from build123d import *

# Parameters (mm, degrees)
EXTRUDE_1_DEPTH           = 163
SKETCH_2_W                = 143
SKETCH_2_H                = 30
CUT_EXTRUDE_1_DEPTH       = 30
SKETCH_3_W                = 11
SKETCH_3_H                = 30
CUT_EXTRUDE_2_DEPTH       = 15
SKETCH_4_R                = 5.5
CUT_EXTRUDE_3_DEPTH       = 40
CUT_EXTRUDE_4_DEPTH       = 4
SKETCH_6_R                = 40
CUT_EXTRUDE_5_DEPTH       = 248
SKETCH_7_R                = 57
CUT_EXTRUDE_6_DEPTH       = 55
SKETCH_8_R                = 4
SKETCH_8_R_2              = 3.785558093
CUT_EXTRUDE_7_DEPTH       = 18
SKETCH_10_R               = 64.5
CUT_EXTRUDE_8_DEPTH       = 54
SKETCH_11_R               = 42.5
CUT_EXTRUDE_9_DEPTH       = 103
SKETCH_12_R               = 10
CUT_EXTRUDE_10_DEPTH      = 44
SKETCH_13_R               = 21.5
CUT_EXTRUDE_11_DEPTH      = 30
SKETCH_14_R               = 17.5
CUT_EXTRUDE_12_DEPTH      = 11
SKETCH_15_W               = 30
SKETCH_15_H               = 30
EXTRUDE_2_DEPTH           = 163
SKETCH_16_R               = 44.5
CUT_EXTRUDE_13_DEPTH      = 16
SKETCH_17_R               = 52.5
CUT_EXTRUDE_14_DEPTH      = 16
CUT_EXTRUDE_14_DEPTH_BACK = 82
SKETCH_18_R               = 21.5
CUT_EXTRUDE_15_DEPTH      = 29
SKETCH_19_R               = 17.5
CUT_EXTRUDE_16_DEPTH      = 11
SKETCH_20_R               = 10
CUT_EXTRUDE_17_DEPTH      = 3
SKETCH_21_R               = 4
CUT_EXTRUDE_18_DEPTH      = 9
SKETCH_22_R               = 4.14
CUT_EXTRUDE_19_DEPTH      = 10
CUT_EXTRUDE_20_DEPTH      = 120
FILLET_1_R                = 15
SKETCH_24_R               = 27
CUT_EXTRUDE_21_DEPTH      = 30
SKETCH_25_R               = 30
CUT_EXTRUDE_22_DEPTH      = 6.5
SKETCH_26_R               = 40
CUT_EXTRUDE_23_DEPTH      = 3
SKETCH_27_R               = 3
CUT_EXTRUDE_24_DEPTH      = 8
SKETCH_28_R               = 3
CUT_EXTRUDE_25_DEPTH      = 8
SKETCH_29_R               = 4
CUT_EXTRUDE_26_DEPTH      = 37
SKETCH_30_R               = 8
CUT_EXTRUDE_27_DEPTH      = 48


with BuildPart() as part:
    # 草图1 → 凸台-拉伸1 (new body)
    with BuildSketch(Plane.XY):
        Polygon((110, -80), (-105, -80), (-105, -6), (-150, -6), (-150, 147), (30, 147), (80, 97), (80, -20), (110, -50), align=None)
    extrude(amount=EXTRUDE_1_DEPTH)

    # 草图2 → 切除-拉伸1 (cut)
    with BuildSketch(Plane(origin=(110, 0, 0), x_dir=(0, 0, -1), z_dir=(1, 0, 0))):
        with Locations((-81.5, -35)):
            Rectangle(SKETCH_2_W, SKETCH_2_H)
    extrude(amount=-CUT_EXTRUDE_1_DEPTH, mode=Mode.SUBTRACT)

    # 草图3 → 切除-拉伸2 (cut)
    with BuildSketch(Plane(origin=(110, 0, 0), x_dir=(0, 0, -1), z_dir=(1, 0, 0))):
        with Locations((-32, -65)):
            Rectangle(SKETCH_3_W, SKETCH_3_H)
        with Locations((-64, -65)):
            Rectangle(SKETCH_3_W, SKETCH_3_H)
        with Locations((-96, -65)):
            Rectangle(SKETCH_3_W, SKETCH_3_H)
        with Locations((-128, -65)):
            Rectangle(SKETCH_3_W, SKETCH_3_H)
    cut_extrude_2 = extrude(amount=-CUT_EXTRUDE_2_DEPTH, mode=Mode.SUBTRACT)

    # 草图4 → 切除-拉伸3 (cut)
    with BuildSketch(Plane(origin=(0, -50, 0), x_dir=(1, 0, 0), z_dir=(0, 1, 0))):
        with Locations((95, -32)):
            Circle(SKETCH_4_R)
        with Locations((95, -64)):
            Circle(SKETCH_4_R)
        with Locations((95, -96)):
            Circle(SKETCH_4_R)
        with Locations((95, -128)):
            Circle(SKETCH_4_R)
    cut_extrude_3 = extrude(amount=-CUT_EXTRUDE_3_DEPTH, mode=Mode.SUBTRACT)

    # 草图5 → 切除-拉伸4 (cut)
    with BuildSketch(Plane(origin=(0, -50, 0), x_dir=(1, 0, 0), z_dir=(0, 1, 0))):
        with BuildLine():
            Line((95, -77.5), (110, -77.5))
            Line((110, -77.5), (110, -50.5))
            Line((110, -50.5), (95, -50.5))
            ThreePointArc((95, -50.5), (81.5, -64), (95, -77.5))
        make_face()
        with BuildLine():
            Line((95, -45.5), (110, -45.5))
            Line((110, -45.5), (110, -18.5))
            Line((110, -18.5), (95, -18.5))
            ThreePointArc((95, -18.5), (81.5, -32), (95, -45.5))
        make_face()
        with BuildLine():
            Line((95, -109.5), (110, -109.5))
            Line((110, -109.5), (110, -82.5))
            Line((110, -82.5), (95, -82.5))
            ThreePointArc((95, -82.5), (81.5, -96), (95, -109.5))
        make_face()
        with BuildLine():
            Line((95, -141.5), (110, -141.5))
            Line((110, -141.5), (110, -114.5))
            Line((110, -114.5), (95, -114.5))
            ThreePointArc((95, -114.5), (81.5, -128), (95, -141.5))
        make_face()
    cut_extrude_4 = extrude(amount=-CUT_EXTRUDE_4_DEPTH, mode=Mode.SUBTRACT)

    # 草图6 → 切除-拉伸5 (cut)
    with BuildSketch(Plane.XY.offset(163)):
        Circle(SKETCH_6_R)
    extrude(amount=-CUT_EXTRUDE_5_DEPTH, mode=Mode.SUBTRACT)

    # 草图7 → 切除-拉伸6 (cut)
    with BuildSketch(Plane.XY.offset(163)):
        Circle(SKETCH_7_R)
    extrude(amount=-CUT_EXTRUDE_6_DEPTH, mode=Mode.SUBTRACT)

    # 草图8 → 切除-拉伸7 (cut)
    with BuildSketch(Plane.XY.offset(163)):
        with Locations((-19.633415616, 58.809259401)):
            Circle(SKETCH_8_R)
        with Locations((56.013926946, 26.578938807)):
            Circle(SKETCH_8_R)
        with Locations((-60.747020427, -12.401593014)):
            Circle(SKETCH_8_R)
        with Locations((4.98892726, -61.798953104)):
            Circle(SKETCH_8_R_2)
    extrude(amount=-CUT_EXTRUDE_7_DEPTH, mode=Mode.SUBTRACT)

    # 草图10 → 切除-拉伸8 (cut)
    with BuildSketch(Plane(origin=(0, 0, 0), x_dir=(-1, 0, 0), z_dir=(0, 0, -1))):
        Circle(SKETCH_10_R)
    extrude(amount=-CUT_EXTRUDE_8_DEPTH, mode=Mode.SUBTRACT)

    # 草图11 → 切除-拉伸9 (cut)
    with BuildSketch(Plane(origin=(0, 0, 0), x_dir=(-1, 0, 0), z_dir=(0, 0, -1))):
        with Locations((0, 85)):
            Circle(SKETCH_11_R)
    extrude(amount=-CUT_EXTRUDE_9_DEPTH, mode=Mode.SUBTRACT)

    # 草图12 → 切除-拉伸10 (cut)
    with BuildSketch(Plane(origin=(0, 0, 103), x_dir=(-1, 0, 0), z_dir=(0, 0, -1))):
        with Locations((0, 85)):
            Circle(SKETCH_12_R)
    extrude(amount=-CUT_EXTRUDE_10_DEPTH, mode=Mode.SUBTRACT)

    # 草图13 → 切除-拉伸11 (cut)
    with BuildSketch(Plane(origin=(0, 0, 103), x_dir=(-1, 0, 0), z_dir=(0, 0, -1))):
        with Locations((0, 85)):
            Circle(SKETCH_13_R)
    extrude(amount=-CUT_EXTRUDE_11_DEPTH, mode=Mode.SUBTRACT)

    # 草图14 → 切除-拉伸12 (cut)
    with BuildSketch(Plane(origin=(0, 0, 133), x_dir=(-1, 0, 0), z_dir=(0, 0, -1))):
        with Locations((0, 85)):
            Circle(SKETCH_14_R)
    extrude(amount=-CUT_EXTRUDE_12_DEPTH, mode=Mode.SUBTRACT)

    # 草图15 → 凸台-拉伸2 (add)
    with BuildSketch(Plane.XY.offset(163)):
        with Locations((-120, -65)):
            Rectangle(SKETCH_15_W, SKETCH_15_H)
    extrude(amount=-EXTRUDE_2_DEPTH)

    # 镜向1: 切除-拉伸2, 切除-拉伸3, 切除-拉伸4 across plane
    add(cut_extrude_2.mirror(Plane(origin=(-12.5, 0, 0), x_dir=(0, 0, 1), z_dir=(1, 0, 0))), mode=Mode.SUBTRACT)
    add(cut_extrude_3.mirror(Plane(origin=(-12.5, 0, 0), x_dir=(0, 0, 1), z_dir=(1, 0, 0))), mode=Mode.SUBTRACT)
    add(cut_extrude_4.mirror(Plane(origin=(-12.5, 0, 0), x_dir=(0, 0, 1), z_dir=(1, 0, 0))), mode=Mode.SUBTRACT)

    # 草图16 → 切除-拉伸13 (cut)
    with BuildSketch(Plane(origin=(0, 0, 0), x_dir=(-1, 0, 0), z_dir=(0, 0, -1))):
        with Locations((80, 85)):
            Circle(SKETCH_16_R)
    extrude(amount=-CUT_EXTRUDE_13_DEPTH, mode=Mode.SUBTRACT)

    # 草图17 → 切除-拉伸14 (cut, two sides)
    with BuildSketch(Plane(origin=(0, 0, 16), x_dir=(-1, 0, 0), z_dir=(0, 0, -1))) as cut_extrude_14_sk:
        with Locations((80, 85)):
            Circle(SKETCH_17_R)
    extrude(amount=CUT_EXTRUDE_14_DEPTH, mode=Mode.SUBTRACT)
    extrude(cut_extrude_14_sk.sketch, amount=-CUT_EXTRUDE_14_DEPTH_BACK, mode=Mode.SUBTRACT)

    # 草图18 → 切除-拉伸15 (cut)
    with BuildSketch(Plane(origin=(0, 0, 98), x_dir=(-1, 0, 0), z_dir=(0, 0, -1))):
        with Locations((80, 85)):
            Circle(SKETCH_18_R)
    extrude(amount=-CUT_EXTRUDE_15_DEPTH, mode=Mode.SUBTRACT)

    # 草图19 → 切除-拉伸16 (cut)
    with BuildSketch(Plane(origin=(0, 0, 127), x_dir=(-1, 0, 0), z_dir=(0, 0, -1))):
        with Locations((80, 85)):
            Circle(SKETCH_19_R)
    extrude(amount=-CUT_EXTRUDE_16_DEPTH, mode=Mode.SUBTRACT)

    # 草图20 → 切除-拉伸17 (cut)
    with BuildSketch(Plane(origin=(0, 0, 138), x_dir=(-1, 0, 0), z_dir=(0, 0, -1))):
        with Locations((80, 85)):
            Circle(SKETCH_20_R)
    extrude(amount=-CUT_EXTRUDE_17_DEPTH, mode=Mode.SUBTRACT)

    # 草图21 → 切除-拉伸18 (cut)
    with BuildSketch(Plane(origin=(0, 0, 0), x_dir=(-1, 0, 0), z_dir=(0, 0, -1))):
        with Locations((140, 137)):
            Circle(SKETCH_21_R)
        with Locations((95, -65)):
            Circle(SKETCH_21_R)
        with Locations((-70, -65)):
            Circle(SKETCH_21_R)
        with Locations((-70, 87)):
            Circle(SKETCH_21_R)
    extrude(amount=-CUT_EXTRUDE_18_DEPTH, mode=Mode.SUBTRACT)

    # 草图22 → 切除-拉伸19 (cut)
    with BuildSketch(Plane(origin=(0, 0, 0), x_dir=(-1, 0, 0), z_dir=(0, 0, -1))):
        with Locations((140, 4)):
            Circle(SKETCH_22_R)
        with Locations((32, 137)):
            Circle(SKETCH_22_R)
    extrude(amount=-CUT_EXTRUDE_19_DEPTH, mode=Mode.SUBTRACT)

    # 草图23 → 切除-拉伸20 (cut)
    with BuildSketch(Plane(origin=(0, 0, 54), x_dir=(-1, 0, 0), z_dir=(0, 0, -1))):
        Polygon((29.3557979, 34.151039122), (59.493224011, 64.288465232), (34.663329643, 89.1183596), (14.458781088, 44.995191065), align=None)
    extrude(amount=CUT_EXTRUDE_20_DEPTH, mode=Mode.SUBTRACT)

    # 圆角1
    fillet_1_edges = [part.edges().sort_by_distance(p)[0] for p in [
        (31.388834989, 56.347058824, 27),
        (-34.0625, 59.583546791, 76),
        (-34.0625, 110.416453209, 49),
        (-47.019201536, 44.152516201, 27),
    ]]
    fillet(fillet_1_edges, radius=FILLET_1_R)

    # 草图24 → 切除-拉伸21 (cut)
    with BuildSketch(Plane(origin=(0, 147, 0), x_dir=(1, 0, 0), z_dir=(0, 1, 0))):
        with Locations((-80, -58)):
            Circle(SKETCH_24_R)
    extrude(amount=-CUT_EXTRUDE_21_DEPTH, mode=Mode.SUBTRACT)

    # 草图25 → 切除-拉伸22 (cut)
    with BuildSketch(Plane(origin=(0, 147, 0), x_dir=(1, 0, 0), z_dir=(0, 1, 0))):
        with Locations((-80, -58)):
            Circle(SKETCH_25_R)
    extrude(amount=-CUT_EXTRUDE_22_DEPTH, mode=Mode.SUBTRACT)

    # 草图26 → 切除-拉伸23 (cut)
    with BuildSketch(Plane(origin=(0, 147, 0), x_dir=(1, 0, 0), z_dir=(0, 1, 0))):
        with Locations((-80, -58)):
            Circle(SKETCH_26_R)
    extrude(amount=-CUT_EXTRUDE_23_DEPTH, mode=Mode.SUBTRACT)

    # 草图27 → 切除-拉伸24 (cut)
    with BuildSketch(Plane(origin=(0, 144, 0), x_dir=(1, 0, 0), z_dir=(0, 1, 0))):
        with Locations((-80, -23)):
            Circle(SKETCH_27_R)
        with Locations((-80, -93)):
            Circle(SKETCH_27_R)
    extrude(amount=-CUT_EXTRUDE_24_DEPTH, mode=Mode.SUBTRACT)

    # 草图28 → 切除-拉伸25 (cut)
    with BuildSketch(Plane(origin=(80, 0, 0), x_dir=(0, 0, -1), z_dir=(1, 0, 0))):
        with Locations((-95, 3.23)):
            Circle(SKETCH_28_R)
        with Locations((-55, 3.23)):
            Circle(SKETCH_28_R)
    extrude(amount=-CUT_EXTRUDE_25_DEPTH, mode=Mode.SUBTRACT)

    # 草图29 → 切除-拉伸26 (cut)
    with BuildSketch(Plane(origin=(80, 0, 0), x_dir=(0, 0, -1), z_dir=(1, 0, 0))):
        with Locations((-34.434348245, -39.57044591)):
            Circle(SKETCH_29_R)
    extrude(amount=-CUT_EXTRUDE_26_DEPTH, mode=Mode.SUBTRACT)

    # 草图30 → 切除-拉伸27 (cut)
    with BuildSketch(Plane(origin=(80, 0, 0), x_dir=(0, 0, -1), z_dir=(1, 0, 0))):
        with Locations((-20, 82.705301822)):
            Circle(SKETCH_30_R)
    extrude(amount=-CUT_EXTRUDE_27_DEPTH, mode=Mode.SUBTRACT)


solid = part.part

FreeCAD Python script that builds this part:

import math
import FreeCAD as App
import Part
import Sketcher
Q = App.Units.Quantity


def edges_at(feature, points):
    """Names of the edges that pass closest to the given points."""
    edges = feature.Shape.Edges
    near = lambda p: min(range(len(edges)), key=lambda i: edges[i].distToShape(Part.Vertex(*p))[0])
    return sorted({f"Edge{near(p) + 1}" for p in points})


def add_polygon(sketch, points):
    """Adds a closed chain of lines whose ends are joined by coincident constraints."""
    first, n = sketch.GeometryCount, len(points)
    for a, b in zip(points, points[1:] + points[:1]):
        sketch.addGeometry(Part.LineSegment(App.Vector(*a, 0), App.Vector(*b, 0)), False)
    for i in range(n):
        sketch.addConstraint(Sketcher.Constraint("Coincident", first + i, 2, first + (i + 1) % n, 1))

doc = App.newDocument("Part")
body = doc.addObject("PartDesign::Body", "Body")

sketch1 = body.newObject("Sketcher::SketchObject", "Sketch")
sketch1.AttachmentSupport = (doc.getObject("XY_Plane"), [""])
sketch1.MapMode = "FlatFace"
add_polygon(sketch1, [(-105, -80), (110, -80), (110, -50), (80, -20), (80, 97), (30, 147), (-150, 147), (-150, -6), (-105, -6)])
sketch1.addConstraint([
    Sketcher.Constraint("Horizontal", 0),
    Sketcher.Constraint("Vertical", 1),
    Sketcher.Constraint("Vertical", 3),
    Sketcher.Constraint("Horizontal", 5),
    Sketcher.Constraint("Vertical", 6),
    Sketcher.Constraint("Horizontal", 7),
    Sketcher.Constraint("Vertical", 8),
    Sketcher.Constraint("Parallel", 2, 4),
    Sketcher.Constraint("DistanceX", 0, 1, 0, 2, Q("215 mm")),
    Sketcher.Constraint("DistanceX", 5, 2, 5, 1, Q("180 mm")),
    Sketcher.Constraint("DistanceX", 7, 1, 7, 2, Q("45 mm")),
    Sketcher.Constraint("DistanceY", 1, 1, 1, 2, Q("30 mm")),
    Sketcher.Constraint("DistanceY", 3, 1, 3, 2, Q("117 mm")),
    Sketcher.Constraint("DistanceY", 6, 2, 6, 1, Q("153 mm")),
    Sketcher.Constraint("DistanceY", 8, 2, 8, 1, Q("74 mm")),
    Sketcher.Constraint("DistanceX", -1, 1, 0, 2, Q("110 mm")),
    Sketcher.Constraint("DistanceY", 0, 2, -1, 1, Q("80 mm")),
    Sketcher.Constraint("DistanceX", -1, 1, 2, 2, Q("80 mm")),
])
pad1 = body.newObject("PartDesign::Pad", "Pad")
pad1.Profile = sketch1
pad1.Length = 163

sketch2 = body.newObject("Sketcher::SketchObject", "Sketch001")
sketch2.AttachmentSupport = (doc.getObject("YZ_Plane"), [""])
sketch2.MapMode = "FlatFace"
sketch2.AttachmentOffset = App.Placement(App.Vector(0, 0, 110), App.Rotation())
add_polygon(sketch2, [(-20, 153), (-50, 153), (-50, 10), (-20, 10)])
sketch2.addConstraint([
    Sketcher.Constraint("Horizontal", 0),
    Sketcher.Constraint("Vertical", 1),
    Sketcher.Constraint("Horizontal", 2),
    Sketcher.Constraint("Vertical", 3),
    Sketcher.Constraint("DistanceX", 0, 2, 0, 1, Q("30 mm")),
    Sketcher.Constraint("DistanceY", 1, 2, 1, 1, Q("143 mm")),
    Sketcher.Constraint("DistanceX", 0, 2, -1, 1, Q("50 mm")),
    Sketcher.Constraint("DistanceY", -1, 1, 0, 2, Q("153 mm")),
])
pocket1 = body.newObject("PartDesign::Pocket", "Pocket")
pocket1.Profile = sketch2
pocket1.Length = 30

sketch3 = body.newObject("Sketcher::SketchObject", "Sketch002")
sketch3.AttachmentSupport = (doc.getObject("YZ_Plane"), [""])
sketch3.MapMode = "FlatFace"
sketch3.AttachmentOffset = App.Placement(App.Vector(0, 0, 110), App.Rotation())
add_polygon(sketch3, [(-50, 38), (-80, 38), (-80, 26), (-50, 26)])
add_polygon(sketch3, [(-50, 70), (-80, 70), (-80, 58), (-50, 58)])
add_polygon(sketch3, [(-50, 102), (-80, 102), (-80, 90), (-50, 90)])
add_polygon(sketch3, [(-50, 134), (-80, 134), (-80, 122), (-50, 122)])
sketch3.addConstraint([
    Sketcher.Constraint("Horizontal", 0),
    Sketcher.Constraint("Vertical", 1),
    Sketcher.Constraint("Horizontal", 2),
    Sketcher.Constraint("Vertical", 3),
    Sketcher.Constraint("Horizontal", 4),
    Sketcher.Constraint("Vertical", 5),
    Sketcher.Constraint("Horizontal", 6),
    Sketcher.Constraint("Vertical", 7),
    Sketcher.Constraint("Horizontal", 8),
    Sketcher.Constraint("Vertical", 9),
    Sketcher.Constraint("Horizontal", 10),
    Sketcher.Constraint("Vertical", 11),
    Sketcher.Constraint("Horizontal", 12),
    Sketcher.Constraint("Vertical", 13),
    Sketcher.Constraint("Horizontal", 14),
    Sketcher.Constraint("Vertical", 15),
    Sketcher.Constraint("Vertical", 1, 2, 4, 2),
    Sketcher.Constraint("Vertical", 3, 2, 6, 2),
    Sketcher.Constraint("Vertical", 5, 2, 8, 2),
    Sketcher.Constraint("Vertical", 7, 2, 10, 2),
    Sketcher.Constraint("Vertical", 9, 2, 12, 2),
    Sketcher.Constraint("Vertical", 11, 2, 14, 2),
    Sketcher.Constraint("Equal", 3, 5),
    Sketcher.Constraint("Equal", 7, 9),
    Sketcher.Constraint("Equal", 11, 13),
    Sketcher.Constraint("DistanceX", 0, 2, 0, 1, Q("30 mm")),
    Sketcher.Constraint("DistanceY", 1, 2, 1, 1, Q("11 mm")),
    Sketcher.Constraint("DistanceX", 0, 2, -1, 1, Q("80 mm")),
    Sketcher.Constraint("DistanceY", 0, 2, 4, 2, Q("32 mm")),
    Sketcher.Constraint("DistanceY", 4, 2, 8, 2, Q("32 mm")),
    Sketcher.Constraint("DistanceY", 8, 2, 12, 2, Q("32 mm")),
    Sketcher.Constraint("DistanceY", -1, 1, 0, 2, Q("37.5 mm")),
])
pocket2 = body.newObject("PartDesign::Pocket", "Pocket001")
pocket2.Profile = sketch3
pocket2.Length = 15

sketch4 = body.newObject("Sketcher::SketchObject", "Sketch003")
sketch4.AttachmentSupport = (doc.getObject("XZ_Plane"), [""])
sketch4.MapMode = "FlatFace"
sketch4.AttachmentOffset = App.Placement(App.Vector(0, 0, 50), App.Rotation())
sketch4.addGeometry([
    Part.Circle(App.Vector(95, 32, 0), App.Vector(0, 0, 1), 6),
    Part.Circle(App.Vector(95, 64, 0), App.Vector(0, 0, 1), 6),
    Part.Circle(App.Vector(95, 96, 0), App.Vector(0, 0, 1), 6),
    Part.Circle(App.Vector(95, 128, 0), App.Vector(0, 0, 1), 6),
], False)
sketch4.addConstraint([
    Sketcher.Constraint("Equal", 0, 1),
    Sketcher.Constraint("Equal", 1, 2),
    Sketcher.Constraint("Equal", 2, 3),
    Sketcher.Constraint("Vertical", 0, 3, 1, 3),
    Sketcher.Constraint("Vertical", 1, 3, 2, 3),
    Sketcher.Constraint("Vertical", 2, 3, 3, 3),
    Sketcher.Constraint("Diameter", 0, Q("11 mm")),
    Sketcher.Constraint("DistanceX", -1, 1, 0, 3, Q("95 mm")),
    Sketcher.Constraint("DistanceY", -1, 1, 0, 3, Q("32 mm")),
    Sketcher.Constraint("DistanceY", -1, 1, 1, 3, Q("64 mm")),
    Sketcher.Constraint("DistanceY", -1, 1, 2, 3, Q("96 mm")),
    Sketcher.Constraint("DistanceY", -1, 1, 3, 3, Q("128 mm")),
])
pocket3 = body.newObject("PartDesign::Pocket", "Pocket002")
pocket3.Profile = sketch4
pocket3.Length = 40
pocket3.Reversed = True

sketch5 = body.newObject("Sketcher::SketchObject", "Sketch004")
sketch5.AttachmentSupport = (doc.getObject("XZ_Plane"), [""])
sketch5.MapMode = "FlatFace"
sketch5.AttachmentOffset = App.Placement(App.Vector(0, 0, 50), App.Rotation())
sketch5.addGeometry([
    Part.LineSegment(App.Vector(95, 78, 0), App.Vector(110, 78, 0)),
    Part.LineSegment(App.Vector(110, 78, 0), App.Vector(110, 50, 0)),
    Part.LineSegment(App.Vector(110, 50, 0), App.Vector(95, 50, 0)),
    Part.ArcOfCircle(Part.Circle(App.Vector(95, 64, 0), App.Vector(0, 0, 1), 14), math.radians(90), math.radians(270)),
    Part.LineSegment(App.Vector(95, 46, 0), App.Vector(110, 46, 0)),
    Part.LineSegment(App.Vector(110, 46, 0), App.Vector(110, 18, 0)),
    Part.LineSegment(App.Vector(110, 18, 0), App.Vector(95, 18, 0)),
    Part.ArcOfCircle(Part.Circle(App.Vector(95, 32, 0), App.Vector(0, 0, 1), 14), math.radians(90), math.radians(270)),
    Part.LineSegment(App.Vector(95, 110, 0), App.Vector(110, 110, 0)),
    Part.LineSegment(App.Vector(110, 110, 0), App.Vector(110, 82, 0)),
    Part.LineSegment(App.Vector(110, 82, 0), App.Vector(95, 82, 0)),
    Part.ArcOfCircle(Part.Circle(App.Vector(95, 96, 0), App.Vector(0, 0, 1), 14), math.radians(90), math.radians(270)),
    Part.LineSegment(App.Vector(95, 142, 0), App.Vector(110, 142, 0)),
    Part.LineSegment(App.Vector(110, 142, 0), App.Vector(110, 114, 0)),
    Part.LineSegment(App.Vector(110, 114, 0), App.Vector(95, 114, 0)),
    Part.ArcOfCircle(Part.Circle(App.Vector(95, 128, 0), App.Vector(0, 0, 1), 14), math.radians(90), math.radians(270)),
], False)
sketch5.addConstraint([
    Sketcher.Constraint("Coincident", 0, 2, 1, 1),
    Sketcher.Constraint("Coincident", 1, 2, 2, 1),
    Sketcher.Constraint("Tangent", 2, 2, 3, 2),
    Sketcher.Constraint("Tangent", 3, 1, 0, 1),
    Sketcher.Constraint("Coincident", 4, 2, 5, 1),
    Sketcher.Constraint("Coincident", 5, 2, 6, 1),
    Sketcher.Constraint("Tangent", 6, 2, 7, 2),
    Sketcher.Constraint("Tangent", 7, 1, 4, 1),
    Sketcher.Constraint("Coincident", 8, 2, 9, 1),
    Sketcher.Constraint("Coincident", 9, 2, 10, 1),
    Sketcher.Constraint("Tangent", 10, 2, 11, 2),
    Sketcher.Constraint("Tangent", 11, 1, 8, 1),
    Sketcher.Constraint("Coincident", 12, 2, 13, 1),
    Sketcher.Constraint("Coincident", 13, 2, 14, 1),
    Sketcher.Constraint("Tangent", 14, 2, 15, 2),
    Sketcher.Constraint("Tangent", 15, 1, 12, 1),
    Sketcher.Constraint("Horizontal", 0),
    Sketcher.Constraint("Vertical", 1),
    Sketcher.Constraint("Horizontal", 2),
    Sketcher.Constraint("Horizontal", 4),
    Sketcher.Constraint("Vertical", 5),
    Sketcher.Constraint("Horizontal", 6),
    Sketcher.Constraint("Horizontal", 8),
    Sketcher.Constraint("Vertical", 9),
    Sketcher.Constraint("Horizontal", 10),
    Sketcher.Constraint("Horizontal", 12),
    Sketcher.Constraint("Vertical", 13),
    Sketcher.Constraint("Horizontal", 14),
    Sketcher.Constraint("Equal", 3, 7),
    Sketcher.Constraint("Equal", 7, 11),
    Sketcher.Constraint("Equal", 11, 15),
    Sketcher.Constraint("Vertical", 3, 3, 7, 3),
    Sketcher.Constraint("Vertical", 7, 3, 11, 3),
    Sketcher.Constraint("Vertical", 11, 3, 15, 3),
    Sketcher.Constraint("Vertical", 1, 2, 4, 2),
    Sketcher.Constraint("Vertical", 5, 2, 8, 2),
    Sketcher.Constraint("Vertical", 9, 2, 12, 2),
    Sketcher.Constraint("Radius", 3, Q("13.5 mm")),
    Sketcher.Constraint("DistanceX", 0, 1, 0, 2, Q("15 mm")),
    Sketcher.Constraint("DistanceX", -1, 1, 3, 3, Q("95 mm")),
    Sketcher.Constraint("DistanceY", -1, 1, 3, 3, Q("64 mm")),
    Sketcher.Constraint("DistanceY", -1, 1, 7, 3, Q("32 mm")),
    Sketcher.Constraint("DistanceY", -1, 1, 11, 3, Q("96 mm")),
    Sketcher.Constraint("DistanceY", -1, 1, 15, 3, Q("128 mm")),
])
pocket4 = body.newObject("PartDesign::Pocket", "Pocket003")
pocket4.Profile = sketch5
pocket4.Length = 4
pocket4.Reversed = True

sketch6 = body.newObject("Sketcher::SketchObject", "Sketch005")
sketch6.AttachmentSupport = (doc.getObject("XY_Plane"), [""])
sketch6.MapMode = "FlatFace"
sketch6.AttachmentOffset = App.Placement(App.Vector(0, 0, 163), App.Rotation())
sketch6.addGeometry(Part.Circle(App.Vector(0, 0, 0), App.Vector(0, 0, 1), 40), False)
sketch6.addConstraint([
    Sketcher.Constraint("Coincident", 0, 3, -1, 1),
    Sketcher.Constraint("Diameter", 0, Q("80 mm")),
])
pocket5 = body.newObject("PartDesign::Pocket", "Pocket004")
pocket5.Profile = sketch6
pocket5.Length = 248

sketch7 = body.newObject("Sketcher::SketchObject", "Sketch006")
sketch7.AttachmentSupport = (doc.getObject("XY_Plane"), [""])
sketch7.MapMode = "FlatFace"
sketch7.AttachmentOffset = App.Placement(App.Vector(0, 0, 163), App.Rotation())
sketch7.addGeometry(Part.Circle(App.Vector(0, 0, 0), App.Vector(0, 0, 1), 57), False)
sketch7.addConstraint([
    Sketcher.Constraint("Coincident", 0, 3, -1, 1),
    Sketcher.Constraint("Diameter", 0, Q("114 mm")),
])
pocket6 = body.newObject("PartDesign::Pocket", "Pocket005")
pocket6.Profile = sketch7
pocket6.Length = 55

sketch8 = body.newObject("Sketcher::SketchObject", "Sketch007")
sketch8.AttachmentSupport = (doc.getObject("XY_Plane"), [""])
sketch8.MapMode = "FlatFace"
sketch8.AttachmentOffset = App.Placement(App.Vector(0, 0, 163), App.Rotation())
sketch8.addGeometry([
    Part.Circle(App.Vector(-19.6, 58.8, 0), App.Vector(0, 0, 1), 4),
    Part.Circle(App.Vector(56, 26.6, 0), App.Vector(0, 0, 1), 4),
    Part.Circle(App.Vector(-60.7, -12.4, 0), App.Vector(0, 0, 1), 4),
    Part.Circle(App.Vector(5, -61.8, 0), App.Vector(0, 0, 1), 3.8),
], False)
sketch8.addConstraint([
    Sketcher.Constraint("Equal", 0, 1),
    Sketcher.Constraint("Equal", 1, 2),
    Sketcher.Constraint("Diameter", 0, Q("8 mm")),
    Sketcher.Constraint("Diameter", 3, Q("7.571116 mm")),
    Sketcher.Constraint("DistanceX", 3, 3, 1, 3, Q("51.025 mm")),
    Sketcher.Constraint("DistanceY", -1, 1, 0, 3, Q("58.809259 mm")),
    Sketcher.Constraint("DistanceY", -1, 1, 1, 3, Q("26.578939 mm")),
    Sketcher.Constraint("DistanceX", 2, 3, -1, 1, Q("60.74702 mm")),
    Sketcher.Constraint("DistanceY", 2, 3, 1, 3, Q("38.980532 mm")),
    Sketcher.Constraint("DistanceY", 3, 3, 2, 3, Q("49.39736 mm")),
    Sketcher.Constraint("DistanceX", 0, 3, -1, 1, Q("19.633416 mm")),
    Sketcher.Constraint("DistanceX", -1, 1, 1, 3, Q("56.013927 mm")),
])
pocket7 = body.newObject("PartDesign::Pocket", "Pocket006")
pocket7.Profile = sketch8
pocket7.Length = 18

sketch9 = body.newObject("Sketcher::SketchObject", "Sketch008")
sketch9.AttachmentSupport = (doc.getObject("XY_Plane"), [""])
sketch9.MapMode = "FlatFace"
sketch9.addGeometry(Part.Circle(App.Vector(0, 0, 0), App.Vector(0, 0, 1), 64), False)
sketch9.addConstraint([
    Sketcher.Constraint("Coincident", 0, 3, -1, 1),
    Sketcher.Constraint("Diameter", 0, Q("129 mm")),
])
pocket8 = body.newObject("PartDesign::Pocket", "Pocket007")
pocket8.Profile = sketch9
pocket8.Length = 54
pocket8.Reversed = True

sketch10 = body.newObject("Sketcher::SketchObject", "Sketch009")
sketch10.AttachmentSupport = (doc.getObject("XY_Plane"), [""])
sketch10.MapMode = "FlatFace"
sketch10.addGeometry(Part.Circle(App.Vector(0, 85, 0), App.Vector(0, 0, 1), 42), False)
sketch10.addConstraint([
    Sketcher.Constraint("PointOnObject", 0, 3, -2),
    Sketcher.Constraint("Diameter", 0, Q("85 mm")),
    Sketcher.Constraint("DistanceY", -1, 1, 0, 3, Q("85 mm")),
])
pocket9 = body.newObject("PartDesign::Pocket", "Pocket008")
pocket9.Profile = sketch10
pocket9.Length = 103
pocket9.Reversed = True

sketch11 = body.newObject("Sketcher::SketchObject", "Sketch010")
sketch11.AttachmentSupport = (doc.getObject("XY_Plane"), [""])
sketch11.MapMode = "FlatFace"
sketch11.AttachmentOffset = App.Placement(App.Vector(0, 0, 103), App.Rotation())
sketch11.addGeometry(Part.Circle(App.Vector(0, 85, 0), App.Vector(0, 0, 1), 10), False)
sketch11.addConstraint([
    Sketcher.Constraint("PointOnObject", 0, 3, -2),
    Sketcher.Constraint("Diameter", 0, Q("20 mm")),
    Sketcher.Constraint("DistanceY", -1, 1, 0, 3, Q("85 mm")),
])
pocket10 = body.newObject("PartDesign::Pocket", "Pocket009")
pocket10.Profile = sketch11
pocket10.Length = 44
pocket10.Reversed = True

sketch12 = body.newObject("Sketcher::SketchObject", "Sketch011")
sketch12.AttachmentSupport = (doc.getObject("XY_Plane"), [""])
sketch12.MapMode = "FlatFace"
sketch12.AttachmentOffset = App.Placement(App.Vector(0, 0, 103), App.Rotation())
sketch12.addGeometry(Part.Circle(App.Vector(0, 85, 0), App.Vector(0, 0, 1), 22), False)
sketch12.addConstraint([
    Sketcher.Constraint("PointOnObject", 0, 3, -2),
    Sketcher.Constraint("Diameter", 0, Q("43 mm")),
    Sketcher.Constraint("DistanceY", -1, 1, 0, 3, Q("85 mm")),
])
pocket11 = body.newObject("PartDesign::Pocket", "Pocket010")
pocket11.Profile = sketch12
pocket11.Length = 30
pocket11.Reversed = True

sketch13 = body.newObject("Sketcher::SketchObject", "Sketch012")
sketch13.AttachmentSupport = (doc.getObject("XY_Plane"), [""])
sketch13.MapMode = "FlatFace"
sketch13.AttachmentOffset = App.Placement(App.Vector(0, 0, 133), App.Rotation())
sketch13.addGeometry(Part.Circle(App.Vector(0, 85, 0), App.Vector(0, 0, 1), 18), False)
sketch13.addConstraint([
    Sketcher.Constraint("PointOnObject", 0, 3, -2),
    Sketcher.Constraint("Diameter", 0, Q("35 mm")),
    Sketcher.Constraint("DistanceY", -1, 1, 0, 3, Q("85 mm")),
])
pocket12 = body.newObject("PartDesign::Pocket", "Pocket011")
pocket12.Profile = sketch13
pocket12.Length = 11
pocket12.Reversed = True

sketch14 = body.newObject("Sketcher::SketchObject", "Sketch013")
sketch14.AttachmentSupport = (doc.getObject("XY_Plane"), [""])
sketch14.MapMode = "FlatFace"
sketch14.AttachmentOffset = App.Placement(App.Vector(0, 0, 163), App.Rotation())
add_polygon(sketch14, [(-135, -50), (-135, -80), (-105, -80), (-105, -50)])
sketch14.addConstraint([
    Sketcher.Constraint("Vertical", 0),
    Sketcher.Constraint("Horizontal", 1),
    Sketcher.Constraint("Vertical", 2),
    Sketcher.Constraint("Horizontal", 3),
    Sketcher.Constraint("Equal", 3, 0),
    Sketcher.Constraint("DistanceX", 1, 1, 1, 2, Q("30 mm")),
    Sketcher.Constraint("DistanceX", 0, 2, -1, 1, Q("135 mm")),
    Sketcher.Constraint("DistanceY", 0, 2, -1, 1, Q("80 mm")),
])
pad2 = body.newObject("PartDesign::Pad", "Pad001")
pad2.Profile = sketch14
pad2.Length = 163
pad2.Reversed = True
doc.recompute()

datumplane = body.newObject("PartDesign::Plane", "DatumPlane")
datumplane.AttachmentSupport = (doc.getObject("YZ_Plane"), [""])
datumplane.MapMode = "FlatFace"
datumplane.AttachmentOffset = App.Placement(App.Vector(0, 0, -12.5), App.Rotation())
mirrored = body.newObject("PartDesign::Mirrored", "Mirrored")
mirrored.Originals = [pocket2, pocket3, pocket4]
mirrored.MirrorPlane = (datumplane, [""])
body.Tip = mirrored

sketch15 = body.newObject("Sketcher::SketchObject", "Sketch014")
sketch15.AttachmentSupport = (doc.getObject("XY_Plane"), [""])
sketch15.MapMode = "FlatFace"
sketch15.addGeometry(Part.Circle(App.Vector(-80, 85, 0), App.Vector(0, 0, 1), 44), False)
sketch15.addConstraint([
    Sketcher.Constraint("Diameter", 0, Q("89 mm")),
    Sketcher.Constraint("DistanceX", 0, 3, -1, 1, Q("80 mm")),
    Sketcher.Constraint("DistanceY", -1, 1, 0, 3, Q("85 mm")),
])
pocket13 = body.newObject("PartDesign::Pocket", "Pocket012")
pocket13.Profile = sketch15
pocket13.Length = 16
pocket13.Reversed = True

sketch16 = body.newObject("Sketcher::SketchObject", "Sketch015")
sketch16.AttachmentSupport = (doc.getObject("XY_Plane"), [""])
sketch16.MapMode = "FlatFace"
sketch16.AttachmentOffset = App.Placement(App.Vector(0, 0, 16), App.Rotation())
sketch16.addGeometry(Part.Circle(App.Vector(-80, 85, 0), App.Vector(0, 0, 1), 52), False)
sketch16.addConstraint([
    Sketcher.Constraint("Diameter", 0, Q("105 mm")),
    Sketcher.Constraint("DistanceX", 0, 3, -1, 1, Q("80 mm")),
    Sketcher.Constraint("DistanceY", -1, 1, 0, 3, Q("85 mm")),
])
pocket14 = body.newObject("PartDesign::Pocket", "Pocket013")
pocket14.Profile = sketch16
pocket14.Type = "TwoLengths"
pocket14.Length = 16
pocket14.Length2 = 82

sketch17 = body.newObject("Sketcher::SketchObject", "Sketch016")
sketch17.AttachmentSupport = (doc.getObject("XY_Plane"), [""])
sketch17.MapMode = "FlatFace"
sketch17.AttachmentOffset = App.Placement(App.Vector(0, 0, 98), App.Rotation())
sketch17.addGeometry(Part.Circle(App.Vector(-80, 85, 0), App.Vector(0, 0, 1), 22), False)
sketch17.addConstraint([
    Sketcher.Constraint("Diameter", 0, Q("43 mm")),
    Sketcher.Constraint("DistanceX", 0, 3, -1, 1, Q("80 mm")),
    Sketcher.Constraint("DistanceY", -1, 1, 0, 3, Q("85 mm")),
])
pocket15 = body.newObject("PartDesign::Pocket", "Pocket014")
pocket15.Profile = sketch17
pocket15.Length = 29
pocket15.Reversed = True

sketch18 = body.newObject("Sketcher::SketchObject", "Sketch017")
sketch18.AttachmentSupport = (doc.getObject("XY_Plane"), [""])
sketch18.MapMode = "FlatFace"
sketch18.AttachmentOffset = App.Placement(App.Vector(0, 0, 127), App.Rotation())
sketch18.addGeometry(Part.Circle(App.Vector(-80, 85, 0), App.Vector(0, 0, 1), 18), False)
sketch18.addConstraint([
    Sketcher.Constraint("Diameter", 0, Q("35 mm")),
    Sketcher.Constraint("DistanceX", 0, 3, -1, 1, Q("80 mm")),
    Sketcher.Constraint("DistanceY", -1, 1, 0, 3, Q("85 mm")),
])
pocket16 = body.newObject("PartDesign::Pocket", "Pocket015")
pocket16.Profile = sketch18
pocket16.Length = 11
pocket16.Reversed = True

sketch19 = body.newObject("Sketcher::SketchObject", "Sketch018")
sketch19.AttachmentSupport = (doc.getObject("XY_Plane"), [""])
sketch19.MapMode = "FlatFace"
sketch19.AttachmentOffset = App.Placement(App.Vector(0, 0, 138), App.Rotation())
sketch19.addGeometry(Part.Circle(App.Vector(-80, 85, 0), App.Vector(0, 0, 1), 10), False)
sketch19.addConstraint([
    Sketcher.Constraint("Diameter", 0, Q("20 mm")),
    Sketcher.Constraint("DistanceX", 0, 3, -1, 1, Q("80 mm")),
    Sketcher.Constraint("DistanceY", -1, 1, 0, 3, Q("85 mm")),
])
pocket17 = body.newObject("PartDesign::Pocket", "Pocket016")
pocket17.Profile = sketch19
pocket17.Length = 3
pocket17.Reversed = True

sketch20 = body.newObject("Sketcher::SketchObject", "Sketch019")
sketch20.AttachmentSupport = (doc.getObject("XY_Plane"), [""])
sketch20.MapMode = "FlatFace"
sketch20.addGeometry([
    Part.Circle(App.Vector(-140, 137, 0), App.Vector(0, 0, 1), 4),
    Part.Circle(App.Vector(-95, -65, 0), App.Vector(0, 0, 1), 4),
    Part.Circle(App.Vector(70, -65, 0), App.Vector(0, 0, 1), 4),
    Part.Circle(App.Vector(70, 87, 0), App.Vector(0, 0, 1), 4),
], False)
sketch20.addConstraint([
    Sketcher.Constraint("Equal", 0, 1),
    Sketcher.Constraint("Equal", 1, 2),
    Sketcher.Constraint("Equal", 2, 3),
    Sketcher.Constraint("Horizontal", 1, 3, 2, 3),
    Sketcher.Constraint("Vertical", 2, 3, 3, 3),
    Sketcher.Constraint("Diameter", 0, Q("8 mm")),
    Sketcher.Constraint("DistanceX", 0, 3, -1, 1, Q("140 mm")),
    Sketcher.Constraint("DistanceY", -1, 1, 0, 3, Q("137 mm")),
    Sketcher.Constraint("DistanceX", 1, 3, -1, 1, Q("95 mm")),
    Sketcher.Constraint("DistanceY", 1, 3, -1, 1, Q("65 mm")),
    Sketcher.Constraint("DistanceX", -1, 1, 2, 3, Q("70 mm")),
    Sketcher.Constraint("DistanceY", -1, 1, 3, 3, Q("87 mm")),
])
pocket18 = body.newObject("PartDesign::Pocket", "Pocket017")
pocket18.Profile = sketch20
pocket18.Length = 9
pocket18.Reversed = True

sketch21 = body.newObject("Sketcher::SketchObject", "Sketch020")
sketch21.AttachmentSupport = (doc.getObject("XY_Plane"), [""])
sketch21.MapMode = "FlatFace"
sketch21.addGeometry([
    Part.Circle(App.Vector(-140, 4, 0), App.Vector(0, 0, 1), 4.1),
    Part.Circle(App.Vector(-32, 137, 0), App.Vector(0, 0, 1), 4.1),
], False)
sketch21.addConstraint([
    Sketcher.Constraint("Equal", 0, 1),
    Sketcher.Constraint("Diameter", 0, Q("8.28 mm")),
    Sketcher.Constraint("DistanceX", 0, 3, -1, 1, Q("140 mm")),
    Sketcher.Constraint("DistanceY", -1, 1, 0, 3, Q("4 mm")),
    Sketcher.Constraint("DistanceX", 1, 3, -1, 1, Q("32 mm")),
    Sketcher.Constraint("DistanceY", -1, 1, 1, 3, Q("137 mm")),
])
pocket19 = body.newObject("PartDesign::Pocket", "Pocket018")
pocket19.Profile = sketch21
pocket19.Length = 10
pocket19.Reversed = True

sketch22 = body.newObject("Sketcher::SketchObject", "Sketch021")
sketch22.AttachmentSupport = (doc.getObject("XY_Plane"), [""])
sketch22.MapMode = "FlatFace"
sketch22.AttachmentOffset = App.Placement(App.Vector(0, 0, 54), App.Rotation())
add_polygon(sketch22, [(-29, 34), (-59, 64), (-35, 89), (-14, 45)])
sketch22.addConstraint([
    Sketcher.Constraint("Perpendicular", 0, 1),
    Sketcher.Constraint("Angle", 0, Q("135 deg")),
    Sketcher.Constraint("Distance", 3, Q("18.42598 mm")),
    Sketcher.Constraint("DistanceX", 1, 2, -1, 1, Q("34.66333 mm")),
    Sketcher.Constraint("DistanceY", -1, 1, 1, 2, Q("89.11836 mm")),
    Sketcher.Constraint("DistanceX", 2, 2, -1, 1, Q("14.458781 mm")),
    Sketcher.Constraint("DistanceY", -1, 1, 2, 2, Q("44.995191 mm")),
    Sketcher.Constraint("DistanceY", -1, 1, 3, 2, Q("34.151039 mm")),
])
pocket20 = body.newObject("PartDesign::Pocket", "Pocket019")
pocket20.Profile = sketch22
pocket20.Length = 120
doc.recompute()

fillet = body.newObject("PartDesign::Fillet", "Fillet")
fillet.Base = (pocket20, edges_at(pocket20, [
    (31.389, 56.347, 27),
    (-34.062, 59.584, 76),
    (-34.062, 110.416, 49),
    (-47.019, 44.153, 27),
]))
fillet.Radius = 15

sketch23 = body.newObject("Sketcher::SketchObject", "Sketch022")
sketch23.AttachmentSupport = (doc.getObject("XZ_Plane"), [""])
sketch23.MapMode = "FlatFace"
sketch23.AttachmentOffset = App.Placement(App.Vector(0, 0, -147), App.Rotation())
sketch23.addGeometry(Part.Circle(App.Vector(-80, 58, 0), App.Vector(0, 0, 1), 27), False)
sketch23.addConstraint([
    Sketcher.Constraint("Diameter", 0, Q("54 mm")),
    Sketcher.Constraint("DistanceX", 0, 3, -1, 1, Q("80 mm")),
    Sketcher.Constraint("DistanceY", -1, 1, 0, 3, Q("58 mm")),
])
pocket21 = body.newObject("PartDesign::Pocket", "Pocket020")
pocket21.Profile = sketch23
pocket21.Length = 30
pocket21.Reversed = True

sketch24 = body.newObject("Sketcher::SketchObject", "Sketch023")
sketch24.AttachmentSupport = (doc.getObject("XZ_Plane"), [""])
sketch24.MapMode = "FlatFace"
sketch24.AttachmentOffset = App.Placement(App.Vector(0, 0, -147), App.Rotation())
sketch24.addGeometry(Part.Circle(App.Vector(-80, 58, 0), App.Vector(0, 0, 1), 30), False)
sketch24.addConstraint([
    Sketcher.Constraint("Diameter", 0, Q("60 mm")),
    Sketcher.Constraint("DistanceX", 0, 3, -1, 1, Q("80 mm")),
    Sketcher.Constraint("DistanceY", -1, 1, 0, 3, Q("58 mm")),
])
pocket22 = body.newObject("PartDesign::Pocket", "Pocket021")
pocket22.Profile = sketch24
pocket22.Length = 6.5
pocket22.Reversed = True

sketch25 = body.newObject("Sketcher::SketchObject", "Sketch024")
sketch25.AttachmentSupport = (doc.getObject("XZ_Plane"), [""])
sketch25.MapMode = "FlatFace"
sketch25.AttachmentOffset = App.Placement(App.Vector(0, 0, -147), App.Rotation())
sketch25.addGeometry(Part.Circle(App.Vector(-80, 58, 0), App.Vector(0, 0, 1), 40), False)
sketch25.addConstraint([
    Sketcher.Constraint("Diameter", 0, Q("80 mm")),
    Sketcher.Constraint("DistanceX", 0, 3, -1, 1, Q("80 mm")),
    Sketcher.Constraint("DistanceY", -1, 1, 0, 3, Q("58 mm")),
])
pocket23 = body.newObject("PartDesign::Pocket", "Pocket022")
pocket23.Profile = sketch25
pocket23.Length = 3
pocket23.Reversed = True

sketch26 = body.newObject("Sketcher::SketchObject", "Sketch025")
sketch26.AttachmentSupport = (doc.getObject("XZ_Plane"), [""])
sketch26.MapMode = "FlatFace"
sketch26.AttachmentOffset = App.Placement(App.Vector(0, 0, -144), App.Rotation())
sketch26.addGeometry([
    Part.Circle(App.Vector(-80, 23, 0), App.Vector(0, 0, 1), 3),
    Part.Circle(App.Vector(-80, 93, 0), App.Vector(0, 0, 1), 3),
], False)
sketch26.addConstraint([
    Sketcher.Constraint("Equal", 0, 1),
    Sketcher.Constraint("Vertical", 0, 3, 1, 3),
    Sketcher.Constraint("Diameter", 0, Q("6 mm")),
    Sketcher.Constraint("DistanceX", 0, 3, -1, 1, Q("80 mm")),
    Sketcher.Constraint("DistanceY", -1, 1, 0, 3, Q("23 mm")),
    Sketcher.Constraint("DistanceY", -1, 1, 1, 3, Q("93 mm")),
])
pocket24 = body.newObject("PartDesign::Pocket", "Pocket023")
pocket24.Profile = sketch26
pocket24.Length = 8
pocket24.Reversed = True

sketch27 = body.newObject("Sketcher::SketchObject", "Sketch026")
sketch27.AttachmentSupport = (doc.getObject("YZ_Plane"), [""])
sketch27.MapMode = "FlatFace"
sketch27.AttachmentOffset = App.Placement(App.Vector(0, 0, 80), App.Rotation())
sketch27.addGeometry([
    Part.Circle(App.Vector(3.2, 95, 0), App.Vector(0, 0, 1), 3),
    Part.Circle(App.Vector(3.2, 55, 0), App.Vector(0, 0, 1), 3),
], False)
sketch27.addConstraint([
    Sketcher.Constraint("Equal", 0, 1),
    Sketcher.Constraint("Vertical", 0, 3, 1, 3),
    Sketcher.Constraint("Diameter", 0, Q("6 mm")),
    Sketcher.Constraint("DistanceY", -1, 1, 0, 3, Q("95 mm")),
    Sketcher.Constraint("DistanceY", -1, 1, 1, 3, Q("55 mm")),
    Sketcher.Constraint("DistanceX", -1, 1, 0, 3, Q("3.23 mm")),
])
pocket25 = body.newObject("PartDesign::Pocket", "Pocket024")
pocket25.Profile = sketch27
pocket25.Length = 8

sketch28 = body.newObject("Sketcher::SketchObject", "Sketch027")
sketch28.AttachmentSupport = (doc.getObject("YZ_Plane"), [""])
sketch28.MapMode = "FlatFace"
sketch28.AttachmentOffset = App.Placement(App.Vector(0, 0, 80), App.Rotation())
sketch28.addGeometry(Part.Circle(App.Vector(-39.6, 34.4, 0), App.Vector(0, 0, 1), 4), False)
sketch28.addConstraint([
    Sketcher.Constraint("Diameter", 0, Q("8 mm")),
    Sketcher.Constraint("DistanceY", -1, 1, 0, 3, Q("34.434348 mm")),
    Sketcher.Constraint("DistanceX", 0, 3, -1, 1, Q("39.570446 mm")),
])
pocket26 = body.newObject("PartDesign::Pocket", "Pocket025")
pocket26.Profile = sketch28
pocket26.Length = 37

sketch29 = body.newObject("Sketcher::SketchObject", "Sketch028")
sketch29.AttachmentSupport = (doc.getObject("YZ_Plane"), [""])
sketch29.MapMode = "FlatFace"
sketch29.AttachmentOffset = App.Placement(App.Vector(0, 0, 80), App.Rotation())
sketch29.addGeometry(Part.Circle(App.Vector(83, 20, 0), App.Vector(0, 0, 1), 8), False)
sketch29.addConstraint([
    Sketcher.Constraint("Diameter", 0, Q("16 mm")),
    Sketcher.Constraint("DistanceY", -1, 1, 0, 3, Q("20 mm")),
    Sketcher.Constraint("DistanceX", -1, 1, 0, 3, Q("82.705302 mm")),
])
pocket27 = body.newObject("PartDesign::Pocket", "Pocket026")
pocket27.Profile = sketch29
pocket27.Length = 48

doc.recompute()
